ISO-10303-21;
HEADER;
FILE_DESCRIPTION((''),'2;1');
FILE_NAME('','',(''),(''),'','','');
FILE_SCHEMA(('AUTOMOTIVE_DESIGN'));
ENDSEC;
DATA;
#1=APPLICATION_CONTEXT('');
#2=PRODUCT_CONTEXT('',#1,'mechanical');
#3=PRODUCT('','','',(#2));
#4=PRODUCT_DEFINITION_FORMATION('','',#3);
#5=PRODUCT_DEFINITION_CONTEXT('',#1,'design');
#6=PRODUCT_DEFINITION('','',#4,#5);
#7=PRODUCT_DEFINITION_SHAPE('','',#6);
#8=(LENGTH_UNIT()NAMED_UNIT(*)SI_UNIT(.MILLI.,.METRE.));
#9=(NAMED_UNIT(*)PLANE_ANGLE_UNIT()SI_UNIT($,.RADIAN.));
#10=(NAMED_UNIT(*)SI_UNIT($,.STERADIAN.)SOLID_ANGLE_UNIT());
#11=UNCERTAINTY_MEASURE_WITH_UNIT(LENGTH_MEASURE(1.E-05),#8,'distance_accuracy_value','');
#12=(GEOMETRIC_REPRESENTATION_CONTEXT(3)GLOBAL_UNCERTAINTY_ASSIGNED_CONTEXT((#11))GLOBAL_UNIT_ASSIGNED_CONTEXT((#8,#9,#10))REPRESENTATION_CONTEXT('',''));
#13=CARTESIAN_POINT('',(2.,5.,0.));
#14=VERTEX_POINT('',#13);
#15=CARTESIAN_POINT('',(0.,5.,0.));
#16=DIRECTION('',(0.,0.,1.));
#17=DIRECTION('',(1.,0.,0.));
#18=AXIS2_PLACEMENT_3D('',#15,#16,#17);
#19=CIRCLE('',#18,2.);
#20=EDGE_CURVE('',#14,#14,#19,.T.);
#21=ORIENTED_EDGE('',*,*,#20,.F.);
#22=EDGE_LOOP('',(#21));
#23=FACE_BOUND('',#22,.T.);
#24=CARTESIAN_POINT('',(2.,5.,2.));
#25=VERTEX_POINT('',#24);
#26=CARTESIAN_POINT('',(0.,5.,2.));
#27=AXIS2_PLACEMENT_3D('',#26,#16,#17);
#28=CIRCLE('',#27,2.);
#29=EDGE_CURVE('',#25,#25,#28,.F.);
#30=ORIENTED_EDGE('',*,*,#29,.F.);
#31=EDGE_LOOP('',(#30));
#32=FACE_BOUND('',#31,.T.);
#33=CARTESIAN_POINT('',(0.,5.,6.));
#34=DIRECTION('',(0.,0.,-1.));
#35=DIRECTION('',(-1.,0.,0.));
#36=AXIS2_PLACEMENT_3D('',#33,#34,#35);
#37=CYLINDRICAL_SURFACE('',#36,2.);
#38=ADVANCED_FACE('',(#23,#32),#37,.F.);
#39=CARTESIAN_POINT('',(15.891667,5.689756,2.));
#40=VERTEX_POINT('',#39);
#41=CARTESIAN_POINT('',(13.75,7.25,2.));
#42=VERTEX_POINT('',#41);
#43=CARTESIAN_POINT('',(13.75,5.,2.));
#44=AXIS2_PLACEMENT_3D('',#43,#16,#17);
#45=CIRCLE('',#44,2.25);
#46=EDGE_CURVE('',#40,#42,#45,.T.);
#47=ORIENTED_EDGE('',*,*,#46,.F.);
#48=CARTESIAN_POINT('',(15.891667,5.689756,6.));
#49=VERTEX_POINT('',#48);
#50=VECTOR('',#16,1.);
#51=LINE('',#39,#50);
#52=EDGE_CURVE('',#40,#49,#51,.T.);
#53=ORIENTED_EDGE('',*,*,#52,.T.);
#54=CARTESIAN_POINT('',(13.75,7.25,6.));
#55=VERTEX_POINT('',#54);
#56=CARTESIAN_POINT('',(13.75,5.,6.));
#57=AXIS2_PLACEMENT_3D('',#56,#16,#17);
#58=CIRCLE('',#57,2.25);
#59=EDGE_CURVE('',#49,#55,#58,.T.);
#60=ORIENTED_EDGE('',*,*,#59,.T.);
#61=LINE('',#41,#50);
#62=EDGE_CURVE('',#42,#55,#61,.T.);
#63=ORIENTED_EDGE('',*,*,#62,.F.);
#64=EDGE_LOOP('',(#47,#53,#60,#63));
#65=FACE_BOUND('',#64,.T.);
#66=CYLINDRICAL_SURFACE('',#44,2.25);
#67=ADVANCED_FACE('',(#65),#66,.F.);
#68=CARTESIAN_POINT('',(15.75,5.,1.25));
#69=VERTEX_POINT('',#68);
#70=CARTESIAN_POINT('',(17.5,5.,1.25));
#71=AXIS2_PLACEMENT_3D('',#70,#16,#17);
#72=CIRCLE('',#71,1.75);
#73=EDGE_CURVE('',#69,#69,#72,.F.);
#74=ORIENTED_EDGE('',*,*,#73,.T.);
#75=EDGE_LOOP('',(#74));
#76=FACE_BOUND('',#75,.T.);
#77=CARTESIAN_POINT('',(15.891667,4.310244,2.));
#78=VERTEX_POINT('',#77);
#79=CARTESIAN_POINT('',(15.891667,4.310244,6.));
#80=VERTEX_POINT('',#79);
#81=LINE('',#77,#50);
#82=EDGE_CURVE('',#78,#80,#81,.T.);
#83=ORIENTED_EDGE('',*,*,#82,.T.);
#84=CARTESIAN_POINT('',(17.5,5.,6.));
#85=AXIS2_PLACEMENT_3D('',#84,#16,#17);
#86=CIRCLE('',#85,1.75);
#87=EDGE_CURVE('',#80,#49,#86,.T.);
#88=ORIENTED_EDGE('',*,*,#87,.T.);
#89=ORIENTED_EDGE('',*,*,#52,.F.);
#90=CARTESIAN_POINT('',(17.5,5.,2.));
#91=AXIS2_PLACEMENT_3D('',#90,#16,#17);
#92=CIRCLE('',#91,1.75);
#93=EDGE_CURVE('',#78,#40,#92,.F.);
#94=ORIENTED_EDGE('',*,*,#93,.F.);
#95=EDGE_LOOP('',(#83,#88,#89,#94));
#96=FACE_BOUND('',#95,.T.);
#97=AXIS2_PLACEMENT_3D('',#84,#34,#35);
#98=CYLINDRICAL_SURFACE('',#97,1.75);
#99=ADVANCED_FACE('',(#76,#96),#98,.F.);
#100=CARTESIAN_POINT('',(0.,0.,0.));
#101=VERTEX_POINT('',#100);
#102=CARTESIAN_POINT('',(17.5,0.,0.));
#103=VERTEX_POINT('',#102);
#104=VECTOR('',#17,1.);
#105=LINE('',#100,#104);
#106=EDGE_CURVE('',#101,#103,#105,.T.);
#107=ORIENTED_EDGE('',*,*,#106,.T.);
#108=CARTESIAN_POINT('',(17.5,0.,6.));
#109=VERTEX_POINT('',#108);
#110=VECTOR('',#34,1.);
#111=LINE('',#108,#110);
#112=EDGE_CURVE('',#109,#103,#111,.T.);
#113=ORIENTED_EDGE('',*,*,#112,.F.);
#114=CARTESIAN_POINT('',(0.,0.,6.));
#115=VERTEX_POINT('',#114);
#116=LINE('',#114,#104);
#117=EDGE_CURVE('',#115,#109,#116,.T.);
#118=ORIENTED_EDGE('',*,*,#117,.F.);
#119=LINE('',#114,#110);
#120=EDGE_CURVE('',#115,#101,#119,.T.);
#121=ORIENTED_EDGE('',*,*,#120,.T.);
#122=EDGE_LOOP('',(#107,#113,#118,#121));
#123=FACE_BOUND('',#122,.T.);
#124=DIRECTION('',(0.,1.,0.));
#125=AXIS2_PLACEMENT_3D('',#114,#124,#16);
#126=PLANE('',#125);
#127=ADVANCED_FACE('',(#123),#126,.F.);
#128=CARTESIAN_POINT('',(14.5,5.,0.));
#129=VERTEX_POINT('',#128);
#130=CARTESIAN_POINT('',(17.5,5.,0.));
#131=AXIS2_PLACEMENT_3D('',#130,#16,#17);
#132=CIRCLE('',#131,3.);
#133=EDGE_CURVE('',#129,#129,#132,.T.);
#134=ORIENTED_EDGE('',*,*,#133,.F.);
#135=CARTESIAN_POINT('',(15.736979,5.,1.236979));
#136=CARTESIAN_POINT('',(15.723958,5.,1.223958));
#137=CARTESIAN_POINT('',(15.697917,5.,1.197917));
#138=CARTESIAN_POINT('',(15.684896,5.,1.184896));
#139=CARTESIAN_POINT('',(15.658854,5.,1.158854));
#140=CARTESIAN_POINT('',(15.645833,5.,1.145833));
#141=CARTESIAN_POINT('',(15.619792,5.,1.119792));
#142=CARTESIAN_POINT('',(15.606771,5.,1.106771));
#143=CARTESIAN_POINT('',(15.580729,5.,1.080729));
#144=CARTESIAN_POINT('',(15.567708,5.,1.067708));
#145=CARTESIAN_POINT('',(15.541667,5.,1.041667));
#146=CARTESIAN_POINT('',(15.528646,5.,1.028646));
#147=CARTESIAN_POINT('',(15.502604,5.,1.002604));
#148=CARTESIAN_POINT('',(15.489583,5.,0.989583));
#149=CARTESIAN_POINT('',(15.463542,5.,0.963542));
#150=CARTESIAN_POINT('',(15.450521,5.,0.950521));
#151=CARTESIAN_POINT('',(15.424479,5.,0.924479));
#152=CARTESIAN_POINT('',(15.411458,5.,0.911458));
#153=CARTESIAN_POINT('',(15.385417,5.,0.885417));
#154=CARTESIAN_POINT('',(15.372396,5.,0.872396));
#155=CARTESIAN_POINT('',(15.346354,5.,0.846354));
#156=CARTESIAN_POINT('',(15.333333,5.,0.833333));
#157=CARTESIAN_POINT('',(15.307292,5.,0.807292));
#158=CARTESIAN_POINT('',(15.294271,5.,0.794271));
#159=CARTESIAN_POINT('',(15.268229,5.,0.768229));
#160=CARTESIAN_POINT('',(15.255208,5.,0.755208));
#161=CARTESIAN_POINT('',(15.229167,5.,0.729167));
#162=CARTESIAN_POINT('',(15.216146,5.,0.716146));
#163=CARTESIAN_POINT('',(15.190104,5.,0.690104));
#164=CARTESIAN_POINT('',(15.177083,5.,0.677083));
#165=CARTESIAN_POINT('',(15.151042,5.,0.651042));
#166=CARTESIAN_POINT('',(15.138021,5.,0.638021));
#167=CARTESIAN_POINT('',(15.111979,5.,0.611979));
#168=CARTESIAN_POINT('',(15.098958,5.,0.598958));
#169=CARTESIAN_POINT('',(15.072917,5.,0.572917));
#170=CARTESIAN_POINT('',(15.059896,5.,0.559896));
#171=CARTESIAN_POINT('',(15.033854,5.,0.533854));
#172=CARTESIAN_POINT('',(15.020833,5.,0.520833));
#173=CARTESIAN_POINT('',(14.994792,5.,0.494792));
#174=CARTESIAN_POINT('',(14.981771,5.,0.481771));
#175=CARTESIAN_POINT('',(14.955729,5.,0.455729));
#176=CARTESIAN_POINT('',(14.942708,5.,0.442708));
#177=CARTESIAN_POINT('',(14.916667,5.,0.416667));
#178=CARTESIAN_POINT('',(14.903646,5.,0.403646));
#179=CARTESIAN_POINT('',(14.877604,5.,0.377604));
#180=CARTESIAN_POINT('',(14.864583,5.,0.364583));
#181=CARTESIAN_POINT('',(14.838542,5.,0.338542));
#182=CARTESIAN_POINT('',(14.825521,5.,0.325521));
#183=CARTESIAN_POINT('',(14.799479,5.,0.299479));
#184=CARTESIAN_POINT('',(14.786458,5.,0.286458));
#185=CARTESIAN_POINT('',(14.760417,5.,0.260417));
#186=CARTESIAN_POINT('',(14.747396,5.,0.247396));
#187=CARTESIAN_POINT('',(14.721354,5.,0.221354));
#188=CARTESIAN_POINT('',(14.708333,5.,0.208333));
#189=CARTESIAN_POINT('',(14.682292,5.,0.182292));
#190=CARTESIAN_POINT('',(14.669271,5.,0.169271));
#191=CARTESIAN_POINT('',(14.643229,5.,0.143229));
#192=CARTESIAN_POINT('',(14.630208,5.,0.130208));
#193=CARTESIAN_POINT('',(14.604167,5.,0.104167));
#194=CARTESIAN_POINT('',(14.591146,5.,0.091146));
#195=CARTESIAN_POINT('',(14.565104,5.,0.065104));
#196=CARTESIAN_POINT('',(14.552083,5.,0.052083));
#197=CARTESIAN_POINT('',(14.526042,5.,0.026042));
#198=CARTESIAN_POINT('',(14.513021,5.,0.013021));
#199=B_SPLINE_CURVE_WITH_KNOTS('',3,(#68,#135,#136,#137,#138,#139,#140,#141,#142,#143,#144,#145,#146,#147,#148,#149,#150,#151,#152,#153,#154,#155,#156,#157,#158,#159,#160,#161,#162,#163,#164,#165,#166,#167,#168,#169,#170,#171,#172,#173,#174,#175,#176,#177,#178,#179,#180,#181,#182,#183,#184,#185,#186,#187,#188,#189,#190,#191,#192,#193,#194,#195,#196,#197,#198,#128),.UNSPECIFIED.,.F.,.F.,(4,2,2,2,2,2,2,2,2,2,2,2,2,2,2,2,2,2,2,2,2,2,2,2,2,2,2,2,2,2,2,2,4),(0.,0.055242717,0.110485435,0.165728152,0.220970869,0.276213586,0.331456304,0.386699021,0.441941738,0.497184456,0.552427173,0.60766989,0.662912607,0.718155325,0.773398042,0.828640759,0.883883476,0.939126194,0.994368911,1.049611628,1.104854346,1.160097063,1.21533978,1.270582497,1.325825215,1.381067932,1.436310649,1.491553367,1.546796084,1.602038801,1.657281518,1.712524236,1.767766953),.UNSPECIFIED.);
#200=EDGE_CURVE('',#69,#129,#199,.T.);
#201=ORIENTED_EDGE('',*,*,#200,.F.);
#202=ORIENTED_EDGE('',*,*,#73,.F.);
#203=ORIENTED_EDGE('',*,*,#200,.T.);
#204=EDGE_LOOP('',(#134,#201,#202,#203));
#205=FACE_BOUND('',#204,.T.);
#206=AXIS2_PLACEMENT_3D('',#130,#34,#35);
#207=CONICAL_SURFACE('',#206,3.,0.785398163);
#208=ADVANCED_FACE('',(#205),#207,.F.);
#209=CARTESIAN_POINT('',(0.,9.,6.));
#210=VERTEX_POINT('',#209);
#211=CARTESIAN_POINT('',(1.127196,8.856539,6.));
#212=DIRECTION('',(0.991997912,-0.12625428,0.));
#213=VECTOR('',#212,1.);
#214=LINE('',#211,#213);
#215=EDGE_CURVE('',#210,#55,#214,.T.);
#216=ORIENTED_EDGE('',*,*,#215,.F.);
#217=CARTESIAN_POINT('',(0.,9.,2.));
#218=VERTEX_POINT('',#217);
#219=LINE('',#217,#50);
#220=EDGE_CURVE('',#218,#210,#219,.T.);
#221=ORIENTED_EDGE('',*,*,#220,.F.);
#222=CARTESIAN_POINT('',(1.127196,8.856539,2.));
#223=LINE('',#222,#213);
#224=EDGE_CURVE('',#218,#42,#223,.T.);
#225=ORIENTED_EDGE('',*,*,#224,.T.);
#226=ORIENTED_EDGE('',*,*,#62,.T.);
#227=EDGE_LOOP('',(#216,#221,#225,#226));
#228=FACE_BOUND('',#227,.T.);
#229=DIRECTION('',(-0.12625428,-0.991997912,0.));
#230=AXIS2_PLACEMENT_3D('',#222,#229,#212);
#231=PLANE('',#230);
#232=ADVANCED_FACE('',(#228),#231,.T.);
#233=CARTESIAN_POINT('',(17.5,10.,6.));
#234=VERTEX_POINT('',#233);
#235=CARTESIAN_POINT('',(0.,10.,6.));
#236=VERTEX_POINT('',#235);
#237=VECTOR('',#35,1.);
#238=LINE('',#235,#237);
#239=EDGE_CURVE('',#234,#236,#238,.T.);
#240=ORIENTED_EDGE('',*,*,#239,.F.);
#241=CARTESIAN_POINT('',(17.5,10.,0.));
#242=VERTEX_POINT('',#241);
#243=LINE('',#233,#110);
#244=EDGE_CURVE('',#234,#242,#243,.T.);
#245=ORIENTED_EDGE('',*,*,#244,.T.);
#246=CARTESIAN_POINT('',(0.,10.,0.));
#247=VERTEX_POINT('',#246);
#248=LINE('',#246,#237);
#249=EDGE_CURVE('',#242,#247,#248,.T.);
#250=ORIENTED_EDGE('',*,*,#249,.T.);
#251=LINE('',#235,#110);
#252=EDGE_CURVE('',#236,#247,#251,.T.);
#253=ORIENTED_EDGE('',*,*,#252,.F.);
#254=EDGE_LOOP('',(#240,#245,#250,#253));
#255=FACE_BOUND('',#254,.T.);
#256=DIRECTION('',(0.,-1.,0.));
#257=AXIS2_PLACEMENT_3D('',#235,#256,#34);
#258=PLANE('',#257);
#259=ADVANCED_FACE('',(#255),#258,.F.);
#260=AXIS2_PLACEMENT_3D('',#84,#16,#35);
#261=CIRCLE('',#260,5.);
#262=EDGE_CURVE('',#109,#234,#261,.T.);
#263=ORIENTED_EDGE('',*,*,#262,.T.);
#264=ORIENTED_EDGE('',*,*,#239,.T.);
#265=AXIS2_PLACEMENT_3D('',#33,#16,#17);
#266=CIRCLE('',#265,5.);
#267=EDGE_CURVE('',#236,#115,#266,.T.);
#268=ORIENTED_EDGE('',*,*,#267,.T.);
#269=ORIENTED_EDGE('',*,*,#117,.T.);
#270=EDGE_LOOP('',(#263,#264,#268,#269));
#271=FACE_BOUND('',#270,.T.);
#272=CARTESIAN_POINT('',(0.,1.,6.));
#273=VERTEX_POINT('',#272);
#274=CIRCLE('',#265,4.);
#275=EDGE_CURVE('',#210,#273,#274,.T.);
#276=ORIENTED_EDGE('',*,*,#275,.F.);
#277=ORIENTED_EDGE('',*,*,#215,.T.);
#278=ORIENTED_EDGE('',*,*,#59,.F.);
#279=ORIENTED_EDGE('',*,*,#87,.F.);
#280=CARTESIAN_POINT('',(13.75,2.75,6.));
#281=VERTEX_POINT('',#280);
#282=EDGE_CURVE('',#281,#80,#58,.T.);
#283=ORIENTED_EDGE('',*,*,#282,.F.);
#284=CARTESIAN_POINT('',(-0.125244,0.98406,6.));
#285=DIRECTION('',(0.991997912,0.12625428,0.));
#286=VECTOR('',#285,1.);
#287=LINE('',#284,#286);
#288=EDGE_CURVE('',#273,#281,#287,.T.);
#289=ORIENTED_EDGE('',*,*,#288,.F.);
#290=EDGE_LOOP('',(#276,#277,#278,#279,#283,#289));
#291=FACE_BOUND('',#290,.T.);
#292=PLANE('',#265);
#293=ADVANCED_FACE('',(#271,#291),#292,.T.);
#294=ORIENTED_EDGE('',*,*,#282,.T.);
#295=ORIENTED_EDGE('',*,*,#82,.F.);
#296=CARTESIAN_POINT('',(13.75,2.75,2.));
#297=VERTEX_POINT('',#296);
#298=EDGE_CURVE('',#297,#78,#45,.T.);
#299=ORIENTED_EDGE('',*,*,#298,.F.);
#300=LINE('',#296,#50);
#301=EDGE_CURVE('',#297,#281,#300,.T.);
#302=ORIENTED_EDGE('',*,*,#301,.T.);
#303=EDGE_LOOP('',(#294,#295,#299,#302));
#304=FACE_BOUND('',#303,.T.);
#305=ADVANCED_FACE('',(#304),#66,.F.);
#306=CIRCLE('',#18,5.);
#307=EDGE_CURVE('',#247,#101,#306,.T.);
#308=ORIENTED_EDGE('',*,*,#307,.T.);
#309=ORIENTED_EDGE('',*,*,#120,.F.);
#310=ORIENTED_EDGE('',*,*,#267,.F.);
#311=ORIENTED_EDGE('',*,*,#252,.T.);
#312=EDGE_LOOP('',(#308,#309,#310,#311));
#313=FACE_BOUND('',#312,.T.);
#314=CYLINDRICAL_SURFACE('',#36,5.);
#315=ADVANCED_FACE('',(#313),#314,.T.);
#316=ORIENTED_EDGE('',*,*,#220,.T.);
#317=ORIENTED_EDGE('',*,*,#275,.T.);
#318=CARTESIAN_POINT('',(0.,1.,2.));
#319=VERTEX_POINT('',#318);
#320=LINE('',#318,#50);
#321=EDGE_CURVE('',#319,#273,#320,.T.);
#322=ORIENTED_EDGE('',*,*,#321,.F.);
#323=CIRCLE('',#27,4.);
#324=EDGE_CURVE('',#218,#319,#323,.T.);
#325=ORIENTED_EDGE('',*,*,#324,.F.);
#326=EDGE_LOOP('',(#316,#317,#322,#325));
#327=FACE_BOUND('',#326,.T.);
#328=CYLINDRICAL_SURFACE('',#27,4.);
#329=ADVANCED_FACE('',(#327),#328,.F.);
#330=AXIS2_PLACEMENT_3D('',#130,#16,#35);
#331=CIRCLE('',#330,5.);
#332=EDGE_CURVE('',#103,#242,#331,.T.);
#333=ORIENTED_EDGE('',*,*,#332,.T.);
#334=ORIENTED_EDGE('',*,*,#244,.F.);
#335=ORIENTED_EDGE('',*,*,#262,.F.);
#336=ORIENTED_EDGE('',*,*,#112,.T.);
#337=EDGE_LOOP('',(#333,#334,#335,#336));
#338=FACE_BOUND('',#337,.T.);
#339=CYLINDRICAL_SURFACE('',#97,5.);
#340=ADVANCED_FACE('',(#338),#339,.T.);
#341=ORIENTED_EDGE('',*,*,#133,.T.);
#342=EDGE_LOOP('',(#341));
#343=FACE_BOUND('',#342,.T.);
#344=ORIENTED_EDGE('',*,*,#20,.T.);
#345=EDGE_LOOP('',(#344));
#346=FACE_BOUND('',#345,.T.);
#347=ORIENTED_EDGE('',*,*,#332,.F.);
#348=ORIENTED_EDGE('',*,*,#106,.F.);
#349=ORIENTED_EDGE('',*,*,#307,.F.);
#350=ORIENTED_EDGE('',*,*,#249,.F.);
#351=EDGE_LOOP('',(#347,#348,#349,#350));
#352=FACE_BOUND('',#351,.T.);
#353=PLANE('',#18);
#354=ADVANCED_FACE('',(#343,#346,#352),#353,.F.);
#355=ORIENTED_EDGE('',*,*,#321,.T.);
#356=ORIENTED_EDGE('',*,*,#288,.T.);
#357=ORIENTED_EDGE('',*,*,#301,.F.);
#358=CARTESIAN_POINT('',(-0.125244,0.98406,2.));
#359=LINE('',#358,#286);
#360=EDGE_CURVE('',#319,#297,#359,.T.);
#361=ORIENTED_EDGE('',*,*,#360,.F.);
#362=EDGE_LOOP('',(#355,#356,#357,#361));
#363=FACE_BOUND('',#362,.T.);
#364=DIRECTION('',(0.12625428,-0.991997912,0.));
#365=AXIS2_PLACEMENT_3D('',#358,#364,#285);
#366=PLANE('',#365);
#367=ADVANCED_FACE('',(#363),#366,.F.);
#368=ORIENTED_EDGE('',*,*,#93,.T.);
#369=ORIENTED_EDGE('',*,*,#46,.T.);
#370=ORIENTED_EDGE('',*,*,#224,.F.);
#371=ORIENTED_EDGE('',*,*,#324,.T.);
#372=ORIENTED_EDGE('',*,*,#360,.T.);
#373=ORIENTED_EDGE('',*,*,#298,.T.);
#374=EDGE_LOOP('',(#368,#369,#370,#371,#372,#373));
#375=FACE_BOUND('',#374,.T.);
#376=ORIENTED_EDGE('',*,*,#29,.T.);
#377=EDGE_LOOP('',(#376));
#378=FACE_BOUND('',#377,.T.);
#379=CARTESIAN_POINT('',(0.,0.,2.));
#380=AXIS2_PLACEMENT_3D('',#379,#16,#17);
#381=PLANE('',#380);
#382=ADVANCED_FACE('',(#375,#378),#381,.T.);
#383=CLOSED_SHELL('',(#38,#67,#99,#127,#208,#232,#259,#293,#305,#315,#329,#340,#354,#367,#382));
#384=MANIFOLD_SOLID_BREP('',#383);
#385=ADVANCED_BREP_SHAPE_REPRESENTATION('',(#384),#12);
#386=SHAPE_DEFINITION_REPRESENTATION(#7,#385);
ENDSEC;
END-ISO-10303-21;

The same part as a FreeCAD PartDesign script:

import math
import FreeCAD as App
import Part
import Sketcher
Q = App.Units.Quantity


def edges_at(feature, points):
    """Names of the edges that pass closest to the given points."""
    edges = feature.Shape.Edges
    near = lambda p: min(range(len(edges)), key=lambda i: edges[i].distToShape(Part.Vertex(*p))[0])
    return sorted({f"Edge{near(p) + 1}" for p in points})

doc = App.newDocument("Part")
params = doc.addObject("Spreadsheet::Sheet", "Params")
for row, (alias, value) in enumerate([
    ("sketch1_diameter", "4 mm"),
    ("sketch1_radius", "5 mm"),
    ("sketch1_diameter2", "3.5 mm"),
    ("sketch1_width", "17.5 mm"),
    ("pad1_length", "6 mm"),
    ("sketch2_diameter", "4 mm"),
    ("sketch2_radius", "4 mm"),
    ("sketch2_radius2", "2.25 mm"),
    ("sketch2_radius3", "1.75 mm"),
    ("pocket1_length", "4 mm"),
    ("chamfer_size", "1.25 mm"),
], start=1):
    params.set(f"A{row}", alias)
    params.set(f"B{row}", "=" + value)
    params.setAlias(f"B{row}", alias)

body = doc.addObject("PartDesign::Body", "Body")

# Sketch on XY plane
sketch1 = doc.addObject("Sketcher::SketchObject", "Sketch")
body.addObject(sketch1)
sketch1.AttachmentSupport = (doc.XY_Plane, [""])
sketch1.MapMode = "FlatFace"
sketch1.addGeometry(Part.LineSegment(App.Vector(0, 0, 0), App.Vector(17.5, 0, 0)), False)
sketch1.addGeometry(Part.ArcOfCircle(Part.Circle(App.Vector(17.5, 5, 0), App.Vector(0, 0, 1), 5), math.radians(-90), math.radians(90)), False)
sketch1.addGeometry(Part.LineSegment(App.Vector(17.5, 10, 0), App.Vector(0, 10, 0)), False)
sketch1.addGeometry(Part.ArcOfCircle(Part.Circle(App.Vector(0, 5, 0), App.Vector(0, 0, 1), 5), math.radians(90), math.radians(270)), False)
sketch1.addGeometry(Part.Circle(App.Vector(0, 5, 0), App.Vector(0, 0, 1), 2), False)
sketch1.addGeometry(Part.Circle(App.Vector(17.5, 5, 0), App.Vector(0, 0, 1), 1.75), False)
sketch1.addConstraint(Sketcher.Constraint("Tangent", 0, 2, 1, 1))
sketch1.addConstraint(Sketcher.Constraint("Tangent", 1, 2, 2, 1))
sketch1.addConstraint(Sketcher.Constraint("Tangent", 2, 2, 3, 1))
sketch1.addConstraint(Sketcher.Constraint("Tangent", 3, 2, 0, 1))
sketch1.addConstraint(Sketcher.Constraint("Horizontal", 0))
sketch1.addConstraint(Sketcher.Constraint("Horizontal", 2))
sketch1.addConstraint(Sketcher.Constraint("Coincident", 3, 2, -1, 1))
sketch1.addConstraint(Sketcher.Constraint("Coincident", 4, 3, 3, 3))
sketch1.addConstraint(Sketcher.Constraint("Coincident", 5, 3, 1, 3))
sketch1.addConstraint(Sketcher.Constraint("Diameter", 4, Q("4 mm")))
sketch1.addConstraint(Sketcher.Constraint("Radius", 1, Q("5 mm")))
sketch1.addConstraint(Sketcher.Constraint("Diameter", 5, Q("3.5 mm")))
sketch1.addConstraint(Sketcher.Constraint("DistanceX", 0, 1, 0, 2, Q("17.5 mm")))
sketch1.setExpression("Constraints[9]", "Params.sketch1_diameter")
sketch1.setExpression("Constraints[10]", "Params.sketch1_radius")
sketch1.setExpression("Constraints[11]", "Params.sketch1_diameter2")
sketch1.setExpression("Constraints[12]", "Params.sketch1_width")
pad1 = doc.addObject("PartDesign::Pad", "Pad")
body.addObject(pad1)
pad1.Profile = sketch1
pad1.setExpression("Length", "Params.pad1_length")

# Sketch on XY plane
sketch2 = doc.addObject("Sketcher::SketchObject", "Sketch001")
body.addObject(sketch2)
sketch2.AttachmentSupport = (doc.XY_Plane, [""])
sketch2.MapMode = "FlatFace"
sketch2.AttachmentOffset = App.Placement(App.Vector(0, 0, 2), App.Rotation())
sketch2.addGeometry(Part.LineSegment(App.Vector(1.001952, 8.872479, 0), App.Vector(0, 9, 0)), False)
sketch2.addGeometry(Part.ArcOfCircle(Part.Circle(App.Vector(0, 5, 0), App.Vector(0, 0, 1), 4), math.radians(90), math.radians(270)), False)
sketch2.addGeometry(Part.LineSegment(App.Vector(0, 1, 0), App.Vector(1.001952, 1.127521, 0)), False)
sketch2.addGeometry(Part.LineSegment(App.Vector(1.001952, 1.127521, 0), App.Vector(13.75, 2.75, 0)), False)
sketch2.addGeometry(Part.ArcOfCircle(Part.Circle(App.Vector(13.75, 5, 0), App.Vector(0, 0, 1), 2.25), math.radians(-90), math.radians(-17.851946)), False)
sketch2.addGeometry(Part.ArcOfCircle(Part.Circle(App.Vector(17.5, 5, 0), App.Vector(0, 0, 1), 1.75), math.radians(156.787245), math.radians(203.212755)), False)
sketch2.addGeometry(Part.ArcOfCircle(Part.Circle(App.Vector(13.75, 5, 0), App.Vector(0, 0, 1), 2.25), math.radians(17.851946), math.radians(90)), False)
sketch2.addGeometry(Part.LineSegment(App.Vector(13.75, 7.25, 0), App.Vector(1.001952, 8.872479, 0)), False)
sketch2.addGeometry(Part.Circle(App.Vector(0, 5, 0), App.Vector(0, 0, 1), 2), False)
sketch2.addConstraint(Sketcher.Constraint("Coincident", 0, 2, 1, 1))
sketch2.addConstraint(Sketcher.Constraint("Coincident", 1, 2, 2, 1))
sketch2.addConstraint(Sketcher.Constraint("Coincident", 2, 2, 3, 1))
sketch2.addConstraint(Sketcher.Constraint("Coincident", 3, 2, 4, 1))
sketch2.addConstraint(Sketcher.Constraint("Coincident", 4, 2, 5, 2))
sketch2.addConstraint(Sketcher.Constraint("Coincident", 5, 1, 6, 1))
sketch2.addConstraint(Sketcher.Constraint("Coincident", 6, 2, 7, 1))
sketch2.addConstraint(Sketcher.Constraint("Coincident", 7, 2, 0, 1))
sketch2.addConstraint(Sketcher.Constraint("Coincident", 6, 3, 4, 3))
sketch2.addConstraint(Sketcher.Constraint("Coincident", 8, 3, 1, 3))
sketch2.addConstraint(Sketcher.Constraint("Equal", 4, 6))
sketch2.addConstraint(Sketcher.Constraint("PointOnObject", 1, 3, -2))
sketch2.addConstraint(Sketcher.Constraint("PointOnObject", 0, 2, -2))
sketch2.addConstraint(Sketcher.Constraint("PointOnObject", 1, 2, -2))
sketch2.addConstraint(Sketcher.Constraint("Parallel", 2, 3))
sketch2.addConstraint(Sketcher.Constraint("Parallel", 0, 7))
sketch2.addConstraint(Sketcher.Constraint("Horizontal", 1, 3, 4, 3))
sketch2.addConstraint(Sketcher.Constraint("Horizontal", 4, 3, 5, 3))
sketch2.addConstraint(Sketcher.Constraint("Vertical", 6, 3, 3, 2))
sketch2.addConstraint(Sketcher.Constraint("Vertical", 3, 2, 6, 2))
sketch2.addConstraint(Sketcher.Constraint("Vertical", 2, 2, 7, 2))
sketch2.addConstraint(Sketcher.Constraint("Diameter", 8, Q("4 mm")))
sketch2.addConstraint(Sketcher.Constraint("Radius", 1, Q("4 mm")))
sketch2.addConstraint(Sketcher.Constraint("Radius", 4, Q("2.25 mm")))
sketch2.addConstraint(Sketcher.Constraint("Radius", 5, Q("1.75 mm")))
sketch2.addConstraint(Sketcher.Constraint("DistanceY", -1, 1, 1, 3, Q("5 mm")))
sketch2.addConstraint(Sketcher.Constraint("DistanceX", -1, 1, 5, 3, Q("17.5 mm")))
sketch2.addConstraint(Sketcher.Constraint("DistanceX", -1, 1, 4, 3, Q("13.75 mm")))
sketch2.addConstraint(Sketcher.Constraint("DistanceX", -1, 1, 2, 2, Q("1.001952 mm")))
sketch2.setExpression("Constraints[21]", "Params.sketch2_diameter")
sketch2.setExpression("Constraints[22]", "Params.sketch2_radius")
sketch2.setExpression("Constraints[23]", "Params.sketch2_radius2")
sketch2.setExpression("Constraints[24]", "Params.sketch2_radius3")
pocket1 = doc.addObject("PartDesign::Pocket", "Pocket")
body.addObject(pocket1)
pocket1.Profile = sketch2
pocket1.setExpression("Length", "Params.pocket1_length")
pocket1.Reversed = True
doc.recompute()

chamfer = doc.addObject("PartDesign::Chamfer", "Chamfer")
body.addObject(chamfer)
chamfer.Base = (pocket1, edges_at(pocket1, [(15.75, 5, 0)]))
chamfer.setExpression("Size", "Params.chamfer_size")

doc.recompute()
